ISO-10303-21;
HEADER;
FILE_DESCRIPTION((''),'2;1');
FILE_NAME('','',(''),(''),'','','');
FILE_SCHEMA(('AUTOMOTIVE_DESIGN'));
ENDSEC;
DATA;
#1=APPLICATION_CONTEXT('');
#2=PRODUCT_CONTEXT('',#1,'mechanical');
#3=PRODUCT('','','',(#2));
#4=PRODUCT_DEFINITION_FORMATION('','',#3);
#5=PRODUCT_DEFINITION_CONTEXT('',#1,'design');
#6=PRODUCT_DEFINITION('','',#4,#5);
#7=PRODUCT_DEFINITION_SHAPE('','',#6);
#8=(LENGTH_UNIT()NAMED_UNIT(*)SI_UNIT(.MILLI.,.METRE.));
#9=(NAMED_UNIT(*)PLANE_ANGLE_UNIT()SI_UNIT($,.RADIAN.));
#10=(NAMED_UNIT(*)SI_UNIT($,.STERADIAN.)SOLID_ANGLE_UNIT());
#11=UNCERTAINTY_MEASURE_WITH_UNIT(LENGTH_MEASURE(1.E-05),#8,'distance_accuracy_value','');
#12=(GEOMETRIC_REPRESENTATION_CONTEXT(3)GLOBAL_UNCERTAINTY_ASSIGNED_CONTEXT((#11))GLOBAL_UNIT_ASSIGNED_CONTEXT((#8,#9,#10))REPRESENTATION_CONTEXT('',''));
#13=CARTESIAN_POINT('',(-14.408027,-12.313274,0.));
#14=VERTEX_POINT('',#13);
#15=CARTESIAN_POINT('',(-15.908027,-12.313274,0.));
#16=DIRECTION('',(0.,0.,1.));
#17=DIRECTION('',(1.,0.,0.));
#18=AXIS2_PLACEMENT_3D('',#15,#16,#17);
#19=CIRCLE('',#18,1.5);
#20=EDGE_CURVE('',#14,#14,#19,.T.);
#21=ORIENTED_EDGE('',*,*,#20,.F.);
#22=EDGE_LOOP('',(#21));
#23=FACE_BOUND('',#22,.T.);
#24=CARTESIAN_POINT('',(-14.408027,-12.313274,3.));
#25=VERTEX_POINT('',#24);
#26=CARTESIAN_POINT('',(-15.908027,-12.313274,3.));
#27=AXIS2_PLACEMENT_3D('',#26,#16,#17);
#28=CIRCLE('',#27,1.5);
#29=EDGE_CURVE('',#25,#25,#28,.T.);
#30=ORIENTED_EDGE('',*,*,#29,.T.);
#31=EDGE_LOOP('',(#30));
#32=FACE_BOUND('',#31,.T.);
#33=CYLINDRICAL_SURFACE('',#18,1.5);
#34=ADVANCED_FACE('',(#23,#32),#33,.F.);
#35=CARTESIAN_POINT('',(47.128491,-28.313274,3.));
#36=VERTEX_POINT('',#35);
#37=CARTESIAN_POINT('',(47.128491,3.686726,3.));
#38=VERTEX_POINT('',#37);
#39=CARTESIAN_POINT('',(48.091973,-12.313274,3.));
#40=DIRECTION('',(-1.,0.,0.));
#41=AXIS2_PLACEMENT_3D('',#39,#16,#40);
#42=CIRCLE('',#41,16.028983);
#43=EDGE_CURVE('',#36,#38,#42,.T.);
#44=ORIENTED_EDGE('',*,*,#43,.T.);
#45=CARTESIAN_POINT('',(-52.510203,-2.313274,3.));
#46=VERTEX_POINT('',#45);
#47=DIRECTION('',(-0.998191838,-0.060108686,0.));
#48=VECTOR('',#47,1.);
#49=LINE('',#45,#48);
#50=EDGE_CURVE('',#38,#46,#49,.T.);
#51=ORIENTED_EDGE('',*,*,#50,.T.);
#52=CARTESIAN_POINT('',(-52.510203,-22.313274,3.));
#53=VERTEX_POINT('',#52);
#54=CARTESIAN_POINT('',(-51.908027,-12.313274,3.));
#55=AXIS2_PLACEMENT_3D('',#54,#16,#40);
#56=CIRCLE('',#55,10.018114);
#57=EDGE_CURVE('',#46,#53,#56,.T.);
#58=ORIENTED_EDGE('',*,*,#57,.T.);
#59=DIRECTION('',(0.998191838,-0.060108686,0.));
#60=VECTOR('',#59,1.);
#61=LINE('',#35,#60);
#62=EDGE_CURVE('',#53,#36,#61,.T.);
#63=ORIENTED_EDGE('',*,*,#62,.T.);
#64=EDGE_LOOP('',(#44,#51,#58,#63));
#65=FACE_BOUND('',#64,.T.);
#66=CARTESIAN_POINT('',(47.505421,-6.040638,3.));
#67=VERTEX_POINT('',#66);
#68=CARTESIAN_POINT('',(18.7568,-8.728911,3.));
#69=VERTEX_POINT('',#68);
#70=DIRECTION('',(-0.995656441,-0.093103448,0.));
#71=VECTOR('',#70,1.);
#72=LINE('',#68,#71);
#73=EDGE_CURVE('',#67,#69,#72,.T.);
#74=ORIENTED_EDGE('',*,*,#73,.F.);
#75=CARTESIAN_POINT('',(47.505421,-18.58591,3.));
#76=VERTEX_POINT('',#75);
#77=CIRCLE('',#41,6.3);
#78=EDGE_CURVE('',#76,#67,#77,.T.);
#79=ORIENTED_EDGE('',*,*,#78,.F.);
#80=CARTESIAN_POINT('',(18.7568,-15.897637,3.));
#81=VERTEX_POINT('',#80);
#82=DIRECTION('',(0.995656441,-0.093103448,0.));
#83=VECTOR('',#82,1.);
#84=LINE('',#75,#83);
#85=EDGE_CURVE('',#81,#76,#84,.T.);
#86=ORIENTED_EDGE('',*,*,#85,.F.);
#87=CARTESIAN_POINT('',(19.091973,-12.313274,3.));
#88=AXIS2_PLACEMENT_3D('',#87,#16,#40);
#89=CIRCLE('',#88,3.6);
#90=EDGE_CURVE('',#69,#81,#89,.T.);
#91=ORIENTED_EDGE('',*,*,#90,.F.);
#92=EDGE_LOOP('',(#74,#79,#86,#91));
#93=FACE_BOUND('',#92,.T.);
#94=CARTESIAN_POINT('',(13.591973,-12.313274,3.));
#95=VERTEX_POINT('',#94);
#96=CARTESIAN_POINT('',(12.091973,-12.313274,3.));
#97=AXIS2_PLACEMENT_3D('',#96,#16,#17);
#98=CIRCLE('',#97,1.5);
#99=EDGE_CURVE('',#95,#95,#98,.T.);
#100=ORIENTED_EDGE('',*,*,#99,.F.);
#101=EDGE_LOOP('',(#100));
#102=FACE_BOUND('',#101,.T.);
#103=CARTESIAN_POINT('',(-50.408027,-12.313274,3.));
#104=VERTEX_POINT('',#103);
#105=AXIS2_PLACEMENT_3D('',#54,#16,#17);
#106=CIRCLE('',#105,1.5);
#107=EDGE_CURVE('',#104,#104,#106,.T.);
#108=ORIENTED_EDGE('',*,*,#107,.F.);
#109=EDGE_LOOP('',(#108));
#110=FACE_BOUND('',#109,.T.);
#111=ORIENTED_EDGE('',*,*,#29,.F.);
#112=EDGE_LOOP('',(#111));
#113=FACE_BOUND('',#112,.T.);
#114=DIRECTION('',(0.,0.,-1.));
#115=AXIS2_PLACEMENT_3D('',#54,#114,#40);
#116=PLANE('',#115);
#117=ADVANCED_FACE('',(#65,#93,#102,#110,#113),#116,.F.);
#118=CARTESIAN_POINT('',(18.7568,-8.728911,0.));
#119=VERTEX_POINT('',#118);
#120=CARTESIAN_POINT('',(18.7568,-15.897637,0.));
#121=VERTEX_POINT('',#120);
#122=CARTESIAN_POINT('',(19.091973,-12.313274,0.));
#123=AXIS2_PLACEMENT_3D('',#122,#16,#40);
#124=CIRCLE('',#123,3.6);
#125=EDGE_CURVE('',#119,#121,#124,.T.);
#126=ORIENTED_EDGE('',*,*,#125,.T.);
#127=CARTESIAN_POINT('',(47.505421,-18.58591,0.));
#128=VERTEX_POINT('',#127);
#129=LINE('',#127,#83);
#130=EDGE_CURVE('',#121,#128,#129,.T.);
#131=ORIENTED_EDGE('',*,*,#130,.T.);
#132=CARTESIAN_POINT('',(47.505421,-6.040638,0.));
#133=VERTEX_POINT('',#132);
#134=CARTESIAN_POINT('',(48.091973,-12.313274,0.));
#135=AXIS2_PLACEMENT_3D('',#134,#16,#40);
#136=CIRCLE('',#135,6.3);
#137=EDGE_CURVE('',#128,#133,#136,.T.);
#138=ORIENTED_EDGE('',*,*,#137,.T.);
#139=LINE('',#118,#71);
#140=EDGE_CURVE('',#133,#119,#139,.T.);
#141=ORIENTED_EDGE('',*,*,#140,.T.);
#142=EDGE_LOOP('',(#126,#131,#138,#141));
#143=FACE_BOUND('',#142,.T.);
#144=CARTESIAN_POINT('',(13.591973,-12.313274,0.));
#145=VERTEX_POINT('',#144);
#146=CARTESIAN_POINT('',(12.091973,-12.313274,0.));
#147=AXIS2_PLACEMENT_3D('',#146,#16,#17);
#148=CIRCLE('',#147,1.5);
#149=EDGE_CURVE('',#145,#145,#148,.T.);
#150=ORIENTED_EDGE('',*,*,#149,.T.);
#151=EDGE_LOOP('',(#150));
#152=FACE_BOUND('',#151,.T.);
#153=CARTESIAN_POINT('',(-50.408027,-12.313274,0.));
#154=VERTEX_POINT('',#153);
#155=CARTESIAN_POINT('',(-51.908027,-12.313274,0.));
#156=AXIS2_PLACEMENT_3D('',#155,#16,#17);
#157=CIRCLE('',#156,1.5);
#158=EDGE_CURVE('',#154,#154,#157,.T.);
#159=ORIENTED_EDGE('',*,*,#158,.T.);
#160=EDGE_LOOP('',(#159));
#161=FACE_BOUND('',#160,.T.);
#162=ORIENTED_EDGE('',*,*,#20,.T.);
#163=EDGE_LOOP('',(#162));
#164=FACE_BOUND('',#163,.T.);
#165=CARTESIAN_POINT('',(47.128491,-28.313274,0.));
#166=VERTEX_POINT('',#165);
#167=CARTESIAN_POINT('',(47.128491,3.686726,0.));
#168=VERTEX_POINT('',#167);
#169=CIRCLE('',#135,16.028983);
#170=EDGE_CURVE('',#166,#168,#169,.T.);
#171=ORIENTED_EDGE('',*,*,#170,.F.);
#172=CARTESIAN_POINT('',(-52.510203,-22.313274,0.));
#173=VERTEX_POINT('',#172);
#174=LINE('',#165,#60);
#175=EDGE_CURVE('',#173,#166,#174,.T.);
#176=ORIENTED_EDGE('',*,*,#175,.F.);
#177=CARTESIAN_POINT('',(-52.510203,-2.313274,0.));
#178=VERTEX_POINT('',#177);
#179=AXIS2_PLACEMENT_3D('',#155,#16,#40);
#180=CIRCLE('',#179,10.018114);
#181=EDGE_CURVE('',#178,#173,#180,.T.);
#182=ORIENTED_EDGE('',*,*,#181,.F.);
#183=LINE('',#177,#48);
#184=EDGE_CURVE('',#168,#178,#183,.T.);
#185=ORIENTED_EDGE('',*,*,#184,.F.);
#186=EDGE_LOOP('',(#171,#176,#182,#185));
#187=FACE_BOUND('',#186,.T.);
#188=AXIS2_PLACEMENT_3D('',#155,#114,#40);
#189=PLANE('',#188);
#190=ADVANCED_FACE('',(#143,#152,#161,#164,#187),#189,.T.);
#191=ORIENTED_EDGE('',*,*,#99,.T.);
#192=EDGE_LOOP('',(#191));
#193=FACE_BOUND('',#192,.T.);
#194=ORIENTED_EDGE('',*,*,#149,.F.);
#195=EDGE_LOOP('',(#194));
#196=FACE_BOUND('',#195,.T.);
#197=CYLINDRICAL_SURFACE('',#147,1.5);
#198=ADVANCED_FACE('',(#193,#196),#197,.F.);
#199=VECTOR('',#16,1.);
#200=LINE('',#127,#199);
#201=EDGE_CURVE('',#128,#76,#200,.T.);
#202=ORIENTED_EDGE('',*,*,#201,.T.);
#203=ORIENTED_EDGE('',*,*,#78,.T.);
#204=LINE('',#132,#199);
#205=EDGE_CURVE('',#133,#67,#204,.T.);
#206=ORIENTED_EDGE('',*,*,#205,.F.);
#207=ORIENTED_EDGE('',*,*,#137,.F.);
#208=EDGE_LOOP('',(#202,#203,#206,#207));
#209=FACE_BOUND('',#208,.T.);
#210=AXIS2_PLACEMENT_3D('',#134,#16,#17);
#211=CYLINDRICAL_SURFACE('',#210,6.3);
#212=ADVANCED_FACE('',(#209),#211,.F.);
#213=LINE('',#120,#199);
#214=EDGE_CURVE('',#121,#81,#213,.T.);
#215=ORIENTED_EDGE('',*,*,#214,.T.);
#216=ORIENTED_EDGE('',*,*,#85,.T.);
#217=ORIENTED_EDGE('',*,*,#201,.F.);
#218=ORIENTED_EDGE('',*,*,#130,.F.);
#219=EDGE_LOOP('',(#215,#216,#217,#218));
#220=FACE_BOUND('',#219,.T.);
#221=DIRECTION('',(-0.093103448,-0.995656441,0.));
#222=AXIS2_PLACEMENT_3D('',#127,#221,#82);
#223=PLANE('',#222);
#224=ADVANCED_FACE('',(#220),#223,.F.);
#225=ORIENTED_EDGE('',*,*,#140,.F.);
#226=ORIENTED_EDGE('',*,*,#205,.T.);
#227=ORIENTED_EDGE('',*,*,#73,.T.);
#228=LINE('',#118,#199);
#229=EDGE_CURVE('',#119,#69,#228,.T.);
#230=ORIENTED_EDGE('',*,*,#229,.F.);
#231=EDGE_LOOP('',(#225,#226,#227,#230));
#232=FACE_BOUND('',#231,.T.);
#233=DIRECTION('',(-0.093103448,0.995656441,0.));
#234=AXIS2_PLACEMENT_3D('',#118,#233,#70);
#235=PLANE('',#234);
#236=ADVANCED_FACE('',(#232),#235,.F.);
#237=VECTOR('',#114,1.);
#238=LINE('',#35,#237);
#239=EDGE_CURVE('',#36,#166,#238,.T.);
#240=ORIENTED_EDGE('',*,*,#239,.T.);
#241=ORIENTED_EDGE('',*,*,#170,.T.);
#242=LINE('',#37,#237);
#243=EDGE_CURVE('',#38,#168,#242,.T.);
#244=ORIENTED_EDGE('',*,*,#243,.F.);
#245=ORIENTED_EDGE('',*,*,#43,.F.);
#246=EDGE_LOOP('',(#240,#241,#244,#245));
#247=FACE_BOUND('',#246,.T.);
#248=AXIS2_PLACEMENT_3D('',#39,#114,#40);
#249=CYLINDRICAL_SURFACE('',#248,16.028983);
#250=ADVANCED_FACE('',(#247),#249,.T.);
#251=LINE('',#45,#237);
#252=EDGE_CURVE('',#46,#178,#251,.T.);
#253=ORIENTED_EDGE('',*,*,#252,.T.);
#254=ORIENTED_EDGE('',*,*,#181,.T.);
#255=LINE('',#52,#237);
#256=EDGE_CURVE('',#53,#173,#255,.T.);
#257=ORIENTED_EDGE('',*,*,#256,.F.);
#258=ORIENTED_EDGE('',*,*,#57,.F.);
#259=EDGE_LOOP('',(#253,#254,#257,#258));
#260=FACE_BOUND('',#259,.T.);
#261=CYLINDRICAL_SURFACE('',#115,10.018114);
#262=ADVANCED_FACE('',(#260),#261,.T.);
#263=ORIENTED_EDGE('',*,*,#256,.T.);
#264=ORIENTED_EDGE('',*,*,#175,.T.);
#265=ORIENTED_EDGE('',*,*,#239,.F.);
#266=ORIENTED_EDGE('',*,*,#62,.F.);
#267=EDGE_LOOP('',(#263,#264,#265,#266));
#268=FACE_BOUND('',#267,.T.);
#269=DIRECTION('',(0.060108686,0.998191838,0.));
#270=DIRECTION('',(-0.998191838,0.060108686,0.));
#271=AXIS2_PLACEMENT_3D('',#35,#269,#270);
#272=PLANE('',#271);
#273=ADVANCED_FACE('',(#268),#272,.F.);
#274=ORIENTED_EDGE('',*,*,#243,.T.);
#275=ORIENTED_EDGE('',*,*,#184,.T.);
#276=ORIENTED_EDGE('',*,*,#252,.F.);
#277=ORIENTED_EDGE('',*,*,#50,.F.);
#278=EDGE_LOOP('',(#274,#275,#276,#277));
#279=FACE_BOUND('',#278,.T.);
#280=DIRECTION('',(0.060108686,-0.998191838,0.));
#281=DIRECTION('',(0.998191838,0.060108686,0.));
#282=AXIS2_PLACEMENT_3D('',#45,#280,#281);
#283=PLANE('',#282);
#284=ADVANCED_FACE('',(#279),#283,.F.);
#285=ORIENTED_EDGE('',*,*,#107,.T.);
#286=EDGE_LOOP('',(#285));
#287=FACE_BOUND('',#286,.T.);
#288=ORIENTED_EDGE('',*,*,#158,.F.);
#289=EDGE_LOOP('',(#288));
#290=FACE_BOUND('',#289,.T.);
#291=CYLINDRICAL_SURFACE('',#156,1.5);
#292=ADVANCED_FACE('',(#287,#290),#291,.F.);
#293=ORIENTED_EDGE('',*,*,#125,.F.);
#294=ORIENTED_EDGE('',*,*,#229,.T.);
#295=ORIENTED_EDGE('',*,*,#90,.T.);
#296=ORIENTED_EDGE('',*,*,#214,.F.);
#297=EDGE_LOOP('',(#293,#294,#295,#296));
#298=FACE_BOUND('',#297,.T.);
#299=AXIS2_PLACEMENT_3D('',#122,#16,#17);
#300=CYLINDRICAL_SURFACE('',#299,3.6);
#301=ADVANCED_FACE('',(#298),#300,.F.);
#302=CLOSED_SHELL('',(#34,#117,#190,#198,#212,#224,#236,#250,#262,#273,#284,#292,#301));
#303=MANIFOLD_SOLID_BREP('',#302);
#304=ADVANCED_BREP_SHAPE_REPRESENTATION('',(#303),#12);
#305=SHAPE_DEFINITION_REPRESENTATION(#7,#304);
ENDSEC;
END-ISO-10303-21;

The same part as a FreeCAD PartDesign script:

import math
import FreeCAD as App
import Part
import Sketcher

doc = App.newDocument("Part")
params = doc.addObject("Spreadsheet::Sheet", "Params")
for row, (alias, value) in enumerate([
    ("pad1_length", "3 mm"),
    ("sketch2_diameter", "3 mm"),
    ("sketch2_radius", "3.6 mm"),
    ("sketch2_radius2", "6.3 mm"),
    ("pocket1_length", "3 mm"),
], start=1):
    params.set(f"A{row}", alias)
    params.set(f"B{row}", "=" + value)
    params.setAlias(f"B{row}", alias)

body = doc.addObject("PartDesign::Body", "Body")

# Sketch on XY plane
sketch1 = doc.addObject("Sketcher::SketchObject", "Sketch")
body.addObject(sketch1)
sketch1.AttachmentSupport = (doc.XY_Plane, [""])
sketch1.MapMode = "FlatFace"
sketch1.addGeometry(Part.LineSegment(App.Vector(47, 4, 0), App.Vector(-53, -2, 0)), False)
sketch1.addGeometry(Part.ArcOfCircle(Part.Circle(App.Vector(-52, -12, 0), App.Vector(0, 0, 1), 10), math.radians(93), math.radians(267)), False)
sketch1.addGeometry(Part.LineSegment(App.Vector(-53, -22, 0), App.Vector(47, -28, 0)), False)
sketch1.addGeometry(Part.ArcOfCircle(Part.Circle(App.Vector(48, -12, 0), App.Vector(0, 0, 1), 16), math.radians(-93), math.radians(93)), False)
sketch1.addConstraint(Sketcher.Constraint("Tangent", 0, 2, 1, 1))
sketch1.addConstraint(Sketcher.Constraint("Tangent", 1, 2, 2, 1))
sketch1.addConstraint(Sketcher.Constraint("Tangent", 2, 2, 3, 1))
sketch1.addConstraint(Sketcher.Constraint("Tangent", 3, 2, 0, 1))
sketch1.addConstraint(Sketcher.Constraint("Horizontal", 1, 3, 3, 3))
sketch1.addConstraint(Sketcher.Constraint("DistanceX", 1, 3, 3, 3, 100.0))
sketch1.addConstraint(Sketcher.Constraint("DistanceY", 1, 3, 0, 2, 10.0))
sketch1.addConstraint(Sketcher.Constraint("DistanceY", 2, 2, 3, 3, 16.0))
sketch1.addConstraint(Sketcher.Constraint("DistanceX", -1, 1, 2, 2, 47.128491))
sketch1.addConstraint(Sketcher.Constraint("DistanceY", 1, 3, -1, 1, 12.313274))
pad1 = doc.addObject("PartDesign::Pad", "Pad")
body.addObject(pad1)
pad1.Profile = sketch1
pad1.setExpression("Length", "Params.pad1_length")

# Sketch on XY plane
sketch2 = doc.addObject("Sketcher::SketchObject", "Sketch001")
body.addObject(sketch2)
sketch2.AttachmentSupport = (doc.XY_Plane, [""])
sketch2.MapMode = "FlatFace"
sketch2.AttachmentOffset = App.Placement(App.Vector(0, 0, 3), App.Rotation())
sketch2.addGeometry(Part.Circle(App.Vector(12.1, -12.3, 0), App.Vector(0, 0, 1), 1.5), False)
sketch2.addGeometry(Part.Circle(App.Vector(-15.9, -12.3, 0), App.Vector(0, 0, 1), 1.5), False)
sketch2.addGeometry(Part.Circle(App.Vector(-51.9, -12.3, 0), App.Vector(0, 0, 1), 1.5), False)
sketch2.addGeometry(Part.LineSegment(App.Vector(47.5, -6, 0), App.Vector(18.8, -8.7, 0)), False)
sketch2.addGeometry(Part.ArcOfCircle(Part.Circle(App.Vector(19.1, -12.3, 0), App.Vector(0, 0, 1), 3.6), math.radians(95), math.radians(265)), False)
sketch2.addGeometry(Part.LineSegment(App.Vector(18.8, -15.9, 0), App.Vector(47.5, -18.6, 0)), False)
sketch2.addGeometry(Part.ArcOfCircle(Part.Circle(App.Vector(48.1, -12.3, 0), App.Vector(0, 0, 1), 6.3), math.radians(-95), math.radians(95)), False)
sketch2.addConstraint(Sketcher.Constraint("Tangent", 3, 2, 4, 1))
sketch2.addConstraint(Sketcher.Constraint("Tangent", 4, 2, 5, 1))
sketch2.addConstraint(Sketcher.Constraint("Tangent", 5, 2, 6, 1))
sketch2.addConstraint(Sketcher.Constraint("Tangent", 6, 2, 3, 1))
sketch2.addConstraint(Sketcher.Constraint("Equal", 0, 1))
sketch2.addConstraint(Sketcher.Constraint("Equal", 1, 2))
sketch2.addConstraint(Sketcher.Constraint("Horizontal", 0, 3, 1, 3))
sketch2.addConstraint(Sketcher.Constraint("Horizontal", 1, 3, 2, 3))
sketch2.addConstraint(Sketcher.Constraint("Horizontal", 2, 3, 4, 3))
sketch2.addConstraint(Sketcher.Constraint("Horizontal", 4, 3, 6, 3))
sketch2.addConstraint(Sketcher.Constraint("Diameter", 0, 3.0))
sketch2.addConstraint(Sketcher.Constraint("Radius", 4, 3.6))
sketch2.addConstraint(Sketcher.Constraint("Radius", 6, 6.3))
sketch2.addConstraint(Sketcher.Constraint("DistanceX", 1, 3, 0, 3, 28.0))
sketch2.addConstraint(Sketcher.Constraint("DistanceX", 2, 3, 1, 3, 36.0))
sketch2.addConstraint(Sketcher.Constraint("DistanceX", 0, 3, 4, 3, 7.0))
sketch2.addConstraint(Sketcher.Constraint("DistanceX", 4, 3, 6, 3, 29.0))
sketch2.addConstraint(Sketcher.Constraint("DistanceX", -1, 1, 3, 2, 18.7568))
sketch2.addConstraint(Sketcher.Constraint("DistanceY", 3, 2, -1, 1, 8.728911))
sketch2.setExpression("Constraints[10]", "Params.sketch2_diameter")
sketch2.setExpression("Constraints[11]", "Params.sketch2_radius")
sketch2.setExpression("Constraints[12]", "Params.sketch2_radius2")
pocket1 = doc.addObject("PartDesign::Pocket", "Pocket")
body.addObject(pocket1)
pocket1.Profile = sketch2
pocket1.setExpression("Length", "Params.pocket1_length")

doc.recompute()
